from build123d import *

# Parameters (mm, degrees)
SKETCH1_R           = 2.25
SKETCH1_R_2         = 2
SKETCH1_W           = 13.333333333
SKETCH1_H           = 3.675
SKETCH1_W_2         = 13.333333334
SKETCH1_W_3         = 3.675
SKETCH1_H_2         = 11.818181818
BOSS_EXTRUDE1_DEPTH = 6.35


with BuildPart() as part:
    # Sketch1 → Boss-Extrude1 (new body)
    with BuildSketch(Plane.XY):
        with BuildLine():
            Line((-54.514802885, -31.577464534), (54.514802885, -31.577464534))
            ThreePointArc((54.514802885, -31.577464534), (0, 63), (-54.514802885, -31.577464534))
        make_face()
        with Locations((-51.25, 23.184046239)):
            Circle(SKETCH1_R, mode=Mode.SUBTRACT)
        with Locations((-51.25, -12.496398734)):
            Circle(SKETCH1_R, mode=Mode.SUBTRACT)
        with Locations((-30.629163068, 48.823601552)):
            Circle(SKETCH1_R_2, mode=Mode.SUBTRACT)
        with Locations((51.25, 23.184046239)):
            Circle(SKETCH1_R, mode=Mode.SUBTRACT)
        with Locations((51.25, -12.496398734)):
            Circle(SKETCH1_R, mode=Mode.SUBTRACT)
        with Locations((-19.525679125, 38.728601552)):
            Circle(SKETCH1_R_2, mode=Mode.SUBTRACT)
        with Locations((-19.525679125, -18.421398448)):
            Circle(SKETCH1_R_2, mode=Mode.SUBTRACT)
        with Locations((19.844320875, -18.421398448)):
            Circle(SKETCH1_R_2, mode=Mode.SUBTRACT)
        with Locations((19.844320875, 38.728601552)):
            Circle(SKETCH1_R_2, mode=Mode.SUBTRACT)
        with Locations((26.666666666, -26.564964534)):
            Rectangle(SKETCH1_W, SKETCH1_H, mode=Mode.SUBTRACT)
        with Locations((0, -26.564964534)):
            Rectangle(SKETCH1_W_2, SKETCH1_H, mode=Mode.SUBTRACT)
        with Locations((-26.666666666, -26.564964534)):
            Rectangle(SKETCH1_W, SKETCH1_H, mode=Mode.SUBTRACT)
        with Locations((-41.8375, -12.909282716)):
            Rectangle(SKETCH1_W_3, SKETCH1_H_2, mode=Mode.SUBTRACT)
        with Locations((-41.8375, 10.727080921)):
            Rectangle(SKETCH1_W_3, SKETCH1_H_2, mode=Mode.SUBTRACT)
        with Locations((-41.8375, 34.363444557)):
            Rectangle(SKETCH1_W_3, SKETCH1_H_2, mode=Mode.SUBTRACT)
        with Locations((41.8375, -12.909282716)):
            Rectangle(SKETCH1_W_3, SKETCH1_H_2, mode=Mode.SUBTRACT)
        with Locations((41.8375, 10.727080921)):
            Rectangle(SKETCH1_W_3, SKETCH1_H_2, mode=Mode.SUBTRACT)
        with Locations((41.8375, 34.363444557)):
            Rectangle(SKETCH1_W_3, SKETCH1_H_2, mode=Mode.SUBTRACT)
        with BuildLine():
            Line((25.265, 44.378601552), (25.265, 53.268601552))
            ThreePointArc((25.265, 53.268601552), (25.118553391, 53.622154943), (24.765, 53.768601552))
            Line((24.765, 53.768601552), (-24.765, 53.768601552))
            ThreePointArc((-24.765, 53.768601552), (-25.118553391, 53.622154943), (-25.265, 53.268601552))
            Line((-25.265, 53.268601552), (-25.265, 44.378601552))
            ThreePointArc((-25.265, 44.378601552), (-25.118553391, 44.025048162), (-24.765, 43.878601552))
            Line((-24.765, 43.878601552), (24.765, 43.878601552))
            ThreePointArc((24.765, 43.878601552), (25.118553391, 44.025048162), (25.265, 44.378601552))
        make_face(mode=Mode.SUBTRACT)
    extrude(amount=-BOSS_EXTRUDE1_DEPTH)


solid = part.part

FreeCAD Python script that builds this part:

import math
import FreeCAD as App
import Part
import Sketcher
from FreeCAD import Vector
Q = App.Units.Quantity

doc = App.newDocument("Part")
body = doc.addObject("PartDesign::Body", "Body")

sketch1 = body.newObject("Sketcher::SketchObject", "Sketch")
sketch1.AttachmentSupport = (doc.getObject("XY_Plane"), [""])
sketch1.MapMode = "FlatFace"
sketch1.addGeometry([
    Part.LineSegment(Vector(-54.514803, -31.577465, 0), Vector(54.514803, -31.577465, 0)),
    Part.ArcOfCircle(Part.Circle(Vector(0, 0, 0), Vector(0, 0, 1), 63), math.radians(-30.081383), math.radians(210.081383)),
    Part.Circle(Vector(-51.25, -12.496399, 0), Vector(0, 0, 1), 2.25),
    Part.LineSegment(Vector(-40, -18.818374, 0), Vector(-43.675, -18.818374, 0)),
    Part.LineSegment(Vector(-43.675, -18.818374, 0), Vector(-43.675, -7.000192, 0)),
    Part.LineSegment(Vector(-43.675, -7.000192, 0), Vector(-40, -7.000192, 0)),
    Part.LineSegment(Vector(-40, -7.000192, 0), Vector(-40, -18.818374, 0)),
    Part.LineSegment(Vector(-20, -28.402465, 0), Vector(-33.333333, -28.402465, 0)),
    Part.LineSegment(Vector(-33.333333, -28.402465, 0), Vector(-33.333333, -24.727465, 0)),
    Part.LineSegment(Vector(-33.333333, -24.727465, 0), Vector(-20, -24.727465, 0)),
    Part.LineSegment(Vector(-20, -24.727465, 0), Vector(-20, -28.402465, 0)),
    Part.Circle(Vector(-19.525679, -18.421398, 0), Vector(0, 0, 1), 2),
    Part.LineSegment(Vector(6.666667, -28.402465, 0), Vector(-6.666667, -28.402465, 0)),
    Part.LineSegment(Vector(-6.666667, -28.402465, 0), Vector(-6.666667, -24.727465, 0)),
    Part.LineSegment(Vector(-6.666667, -24.727465, 0), Vector(6.666667, -24.727465, 0)),
    Part.LineSegment(Vector(6.666667, -24.727465, 0), Vector(6.666667, -28.402465, 0)),
    Part.LineSegment(Vector(-40, 4.81799, 0), Vector(-43.675, 4.81799, 0)),
    Part.LineSegment(Vector(-43.675, 4.81799, 0), Vector(-43.675, 16.636172, 0)),
    Part.LineSegment(Vector(-43.675, 16.636172, 0), Vector(-40, 16.636172, 0)),
    Part.LineSegment(Vector(-40, 16.636172, 0), Vector(-40, 4.81799, 0)),
    Part.LineSegment(Vector(33.333333, -28.402465, 0), Vector(20, -28.402465, 0)),
    Part.LineSegment(Vector(20, -28.402465, 0), Vector(20, -24.727465, 0)),
    Part.LineSegment(Vector(20, -24.727465, 0), Vector(33.333333, -24.727465, 0)),
    Part.LineSegment(Vector(33.333333, -24.727465, 0), Vector(33.333333, -28.402465, 0)),
    Part.Circle(Vector(19.844321, -18.421398, 0), Vector(0, 0, 1), 2),
    Part.LineSegment(Vector(43.675, -18.818374, 0), Vector(40, -18.818374, 0)),
    Part.LineSegment(Vector(40, -18.818374, 0), Vector(40, -7.000192, 0)),
    Part.LineSegment(Vector(40, -7.000192, 0), Vector(43.675, -7.000192, 0)),
    Part.LineSegment(Vector(43.675, -7.000192, 0), Vector(43.675, -18.818374, 0)),
    Part.Circle(Vector(51.25, -12.496399, 0), Vector(0, 0, 1), 2.25),
    Part.LineSegment(Vector(43.675, 4.81799, 0), Vector(40, 4.81799, 0)),
    Part.LineSegment(Vector(40, 4.81799, 0), Vector(40, 16.636172, 0)),
    Part.LineSegment(Vector(40, 16.636172, 0), Vector(43.675, 16.636172, 0)),
    Part.LineSegment(Vector(43.675, 16.636172, 0), Vector(43.675, 4.81799, 0)),
    Part.Circle(Vector(-51.25, 23.184046, 0), Vector(0, 0, 1), 2.25),
    Part.LineSegment(Vector(-40, 28.454354, 0), Vector(-43.675, 28.454354, 0)),
    Part.LineSegment(Vector(-43.675, 28.454354, 0), Vector(-43.675, 40.272535, 0)),
    Part.LineSegment(Vector(-43.675, 40.272535, 0), Vector(-40, 40.272535, 0)),
    Part.LineSegment(Vector(-40, 40.272535, 0), Vector(-40, 28.454354, 0)),
    Part.Circle(Vector(-30.629163, 48.823602, 0), Vector(0, 0, 1), 2),
    Part.Circle(Vector(-19.525679, 38.728602, 0), Vector(0, 0, 1), 2),
    Part.Circle(Vector(51.25, 23.184046, 0), Vector(0, 0, 1), 2.25),
    Part.Circle(Vector(19.844321, 38.728602, 0), Vector(0, 0, 1), 2),
    Part.LineSegment(Vector(25.265, 53.268602, 0), Vector(25.265, 44.378602, 0)),
    Part.ArcOfCircle(Part.Circle(Vector(24.765, 44.378602, 0), Vector(0, 0, 1), 0.5), math.radians(-90), math.radians(0)),
    Part.LineSegment(Vector(24.765, 43.878602, 0), Vector(-24.765, 43.878602, 0)),
    Part.ArcOfCircle(Part.Circle(Vector(-24.765, 44.378602, 0), Vector(0, 0, 1), 0.5), math.radians(180), math.radians(270)),
    Part.LineSegment(Vector(-25.265, 44.378602, 0), Vector(-25.265, 53.268602, 0)),
    Part.ArcOfCircle(Part.Circle(Vector(-24.765, 53.268602, 0), Vector(0, 0, 1), 0.5), math.radians(90), math.radians(180)),
    Part.LineSegment(Vector(-24.765, 53.768602, 0), Vector(24.765, 53.768602, 0)),
    Part.ArcOfCircle(Part.Circle(Vector(24.765, 53.268602, 0), Vector(0, 0, 1), 0.5), math.radians(0), math.radians(90)),
    Part.LineSegment(Vector(43.675, 28.454354, 0), Vector(40, 28.454354, 0)),
    Part.LineSegment(Vector(40, 28.454354, 0), Vector(40, 40.272535, 0)),
    Part.LineSegment(Vector(40, 40.272535, 0), Vector(43.675, 40.272535, 0)),
    Part.LineSegment(Vector(43.675, 40.272535, 0), Vector(43.675, 28.454354, 0)),
], False)
sketch1.addConstraint([
    Sketcher.Constraint("Coincident", 0, 1, 1, 2),
    Sketcher.Constraint("Coincident", 1, 1, 0, 2),
    Sketcher.Constraint("Coincident", 3, 2, 4, 1),
    Sketcher.Constraint("Coincident", 4, 2, 5, 1),
    Sketcher.Constraint("Coincident", 5, 2, 6, 1),
    Sketcher.Constraint("Coincident", 6, 2, 3, 1),
    Sketcher.Constraint("Coincident", 7, 2, 8, 1),
    Sketcher.Constraint("Coincident", 8, 2, 9, 1),
    Sketcher.Constraint("Coincident", 9, 2, 10, 1),
    Sketcher.Constraint("Coincident", 10, 2, 7, 1),
    Sketcher.Constraint("Coincident", 12, 2, 13, 1),
    Sketcher.Constraint("Coincident", 13, 2, 14, 1),
    Sketcher.Constraint("Coincident", 14, 2, 15, 1),
    Sketcher.Constraint("Coincident", 15, 2, 12, 1),
    Sketcher.Constraint("Coincident", 16, 2, 17, 1),
    Sketcher.Constraint("Coincident", 17, 2, 18, 1),
    Sketcher.Constraint("Coincident", 18, 2, 19, 1),
    Sketcher.Constraint("Coincident", 19, 2, 16, 1),
    Sketcher.Constraint("Coincident", 20, 2, 21, 1),
    Sketcher.Constraint("Coincident", 21, 2, 22, 1),
    Sketcher.Constraint("Coincident", 22, 2, 23, 1),
    Sketcher.Constraint("Coincident", 23, 2, 20, 1),
    Sketcher.Constraint("Coincident", 25, 2, 26, 1),
    Sketcher.Constraint("Coincident", 26, 2, 27, 1),
    Sketcher.Constraint("Coincident", 27, 2, 28, 1),
    Sketcher.Constraint("Coincident", 28, 2, 25, 1),
    Sketcher.Constraint("Coincident", 30, 2, 31, 1),
    Sketcher.Constraint("Coincident", 31, 2, 32, 1),
    Sketcher.Constraint("Coincident", 32, 2, 33, 1),
    Sketcher.Constraint("Coincident", 33, 2, 30, 1),
    Sketcher.Constraint("Coincident", 35, 2, 36, 1),
    Sketcher.Constraint("Coincident", 36, 2, 37, 1),
    Sketcher.Constraint("Coincident", 37, 2, 38, 1),
    Sketcher.Constraint("Coincident", 38, 2, 35, 1),
    Sketcher.Constraint("Tangent", 43, 2, 44, 2),
    Sketcher.Constraint("Tangent", 44, 1, 45, 1),
    Sketcher.Constraint("Tangent", 45, 2, 46, 2),
    Sketcher.Constraint("Tangent", 46, 1, 47, 1),
    Sketcher.Constraint("Tangent", 47, 2, 48, 2),
    Sketcher.Constraint("Tangent", 48, 1, 49, 1),
    Sketcher.Constraint("Tangent", 49, 2, 50, 2),
    Sketcher.Constraint("Tangent", 50, 1, 43, 1),
    Sketcher.Constraint("Coincident", 51, 2, 52, 1),
    Sketcher.Constraint("Coincident", 52, 2, 53, 1),
    Sketcher.Constraint("Coincident", 53, 2, 54, 1),
    Sketcher.Constraint("Coincident", 54, 2, 51, 1),
    Sketcher.Constraint("Horizontal", 0),
    Sketcher.Constraint("Horizontal", 3),
    Sketcher.Constraint("Vertical", 4),
    Sketcher.Constraint("Horizontal", 5),
    Sketcher.Constraint("Vertical", 6),
    Sketcher.Constraint("Horizontal", 7),
    Sketcher.Constraint("Vertical", 8),
    Sketcher.Constraint("Horizontal", 9),
    Sketcher.Constraint("Vertical", 10),
    Sketcher.Constraint("Horizontal", 12),
    Sketcher.Constraint("Vertical", 13),
    Sketcher.Constraint("Horizontal", 14),
    Sketcher.Constraint("Vertical", 15),
    Sketcher.Constraint("Horizontal", 16),
    Sketcher.Constraint("Vertical", 17),
    Sketcher.Constraint("Horizontal", 18),
    Sketcher.Constraint("Vertical", 19),
    Sketcher.Constraint("Horizontal", 20),
    Sketcher.Constraint("Vertical", 21),
    Sketcher.Constraint("Horizontal", 22),
    Sketcher.Constraint("Vertical", 23),
    Sketcher.Constraint("Horizontal", 25),
    Sketcher.Constraint("Vertical", 26),
    Sketcher.Constraint("Horizontal", 27),
    Sketcher.Constraint("Vertical", 28),
    Sketcher.Constraint("Horizontal", 30),
    Sketcher.Constraint("Vertical", 31),
    Sketcher.Constraint("Horizontal", 32),
    Sketcher.Constraint("Vertical", 33),
    Sketcher.Constraint("Horizontal", 35),
    Sketcher.Constraint("Vertical", 36),
    Sketcher.Constraint("Horizontal", 37),
    Sketcher.Constraint("Vertical", 38),
    Sketcher.Constraint("Vertical", 43),
    Sketcher.Constraint("Horizontal", 45),
    Sketcher.Constraint("Vertical", 47),
    Sketcher.Constraint("Horizontal", 49),
    Sketcher.Constraint("Horizontal", 51),
    Sketcher.Constraint("Vertical", 52),
    Sketcher.Constraint("Horizontal", 53),
    Sketcher.Constraint("Vertical", 54),
    Sketcher.Constraint("Coincident", 1, 3, -1, 1),
    Sketcher.Constraint("Equal", 11, 24),
    Sketcher.Constraint("Equal", 2, 29),
    Sketcher.Constraint("Equal", 29, 34),
    Sketcher.Constraint("Equal", 24, 39),
    Sketcher.Constraint("Equal", 39, 40),
    Sketcher.Constraint("Equal", 34, 41),
    Sketcher.Constraint("Equal", 40, 42),
    Sketcher.Constraint("Equal", 44, 46),
    Sketcher.Constraint("Equal", 46, 48),
    Sketcher.Constraint("Equal", 48, 50),
    Sketcher.Constraint("Symmetric", 2, 3, 29, 3, -2),
    Sketcher.Constraint("Symmetric", 34, 3, 41, 3, -2),
    Sketcher.Constraint("Symmetric", 10, 2, 20, 2, -2),
    Sketcher.Constraint("Symmetric", 8, 2, 22, 2, -2),
    Sketcher.Constraint("Symmetric", 6, 2, 25, 2, -2),
    Sketcher.Constraint("Symmetric", 4, 2, 27, 2, -2),
    Sketcher.Constraint("Symmetric", 19, 2, 30, 2, -2),
    Sketcher.Constraint("Symmetric", 17, 2, 32, 2, -2),
    Sketcher.Constraint("Symmetric", 38, 2, 51, 2, -2),
    Sketcher.Constraint("Symmetric", 36, 2, 53, 2, -2),
    Sketcher.Constraint("Horizontal", 11, 3, 24, 3),
    Sketcher.Constraint("Horizontal", 40, 3, 42, 3),
    Sketcher.Constraint("Horizontal", 10, 2, 12, 2),
    Sketcher.Constraint("Horizontal", 9, 2, 13, 2),
    Sketcher.Constraint("Vertical", 2, 3, 34, 3),
    Sketcher.Constraint("Vertical", 11, 3, 40, 3),
    Sketcher.Constraint("Vertical", 24, 3, 42, 3),
    Sketcher.Constraint("Vertical", 4, 2, 16, 2),
    Sketcher.Constraint("Vertical", 6, 2, 18, 2),
    Sketcher.Constraint("Vertical", 17, 2, 35, 2),
    Sketcher.Constraint("Vertical", 19, 2, 37, 2),
    Sketcher.Constraint("Equal", 9, 12),
    Sketcher.Constraint("Equal", 53, 8),
    Sketcher.Constraint("Equal", 6, 17),
    Sketcher.Constraint("Equal", 33, 36),
    Sketcher.Constraint("Diameter", 11, Q("4 mm")),
    Sketcher.Constraint("Radius", 1, Q("63 mm")),
    Sketcher.Constraint("Diameter", 2, Q("4.5 mm")),
    Sketcher.Constraint("Radius", 44, Q("0.5 mm")),
    Sketcher.Constraint("DistanceX", 5, 2, -1, 1, Q("40 mm")),
    Sketcher.Constraint("DistanceX", 9, 2, -1, 1, Q("20 mm")),
    Sketcher.Constraint("DistanceX", 45, 2, 45, 1, Q("49.53 mm")),
    Sketcher.Constraint("DistanceY", 43, 2, 43, 1, Q("8.89 mm")),
    Sketcher.Constraint("DistanceX", 2, 3, 29, 3, Q("102.5 mm")),
    Sketcher.Constraint("DistanceX", 3, 2, 3, 1, Q("3.675 mm")),
    Sketcher.Constraint("DistanceX", 11, 3, 24, 3, Q("39.37 mm")),
    Sketcher.Constraint("DistanceY", 2, 3, 39, 3, Q("61.32 mm")),
    Sketcher.Constraint("DistanceY", 11, 3, 40, 3, Q("57.15 mm")),
    Sketcher.Constraint("DistanceY", 42, 3, 44, 3, Q("5.65 mm")),
    Sketcher.Constraint("DistanceY", 1, 1, 22, 2, Q("6.85 mm")),
    Sketcher.Constraint("DistanceX", 36, 2, 46, 3, Q("18.91 mm")),
    Sketcher.Constraint("DistanceY", 11, 3, 2, 3, Q("5.925 mm")),
    Sketcher.Constraint("DistanceY", 4, 1, 4, 2, Q("11.818182 mm")),
    Sketcher.Constraint("DistanceY", 2, 3, -1, 1, Q("12.496399 mm")),
    Sketcher.Constraint("DistanceX", 0, 1, 0, 2, Q("109.029606 mm")),
    Sketcher.Constraint("DistanceX", 7, 2, 7, 1, Q("13.333333 mm")),
    Sketcher.Constraint("DistanceX", 11, 3, -1, 1, Q("19.525679 mm")),
    Sketcher.Constraint("DistanceY", 4, 2, -1, 1, Q("7.000192 mm")),
    Sketcher.Constraint("DistanceY", -1, 1, 16, 2, Q("4.81799 mm")),
    Sketcher.Constraint("DistanceY", 0, 1, 34, 3, Q("54.761511 mm")),
    Sketcher.Constraint("DistanceY", 17, 2, 35, 2, Q("11.818182 mm")),
    Sketcher.Constraint("DistanceX", 39, 3, -1, 1, Q("30.629163 mm")),
    Sketcher.Constraint("DistanceX", 12, 2, -1, 1, Q("6.666667 mm")),
])
pad1 = body.newObject("PartDesign::Pad", "Pad")
pad1.Profile = sketch1
pad1.Length = 6.35
pad1.Reversed = True

doc.recompute()
